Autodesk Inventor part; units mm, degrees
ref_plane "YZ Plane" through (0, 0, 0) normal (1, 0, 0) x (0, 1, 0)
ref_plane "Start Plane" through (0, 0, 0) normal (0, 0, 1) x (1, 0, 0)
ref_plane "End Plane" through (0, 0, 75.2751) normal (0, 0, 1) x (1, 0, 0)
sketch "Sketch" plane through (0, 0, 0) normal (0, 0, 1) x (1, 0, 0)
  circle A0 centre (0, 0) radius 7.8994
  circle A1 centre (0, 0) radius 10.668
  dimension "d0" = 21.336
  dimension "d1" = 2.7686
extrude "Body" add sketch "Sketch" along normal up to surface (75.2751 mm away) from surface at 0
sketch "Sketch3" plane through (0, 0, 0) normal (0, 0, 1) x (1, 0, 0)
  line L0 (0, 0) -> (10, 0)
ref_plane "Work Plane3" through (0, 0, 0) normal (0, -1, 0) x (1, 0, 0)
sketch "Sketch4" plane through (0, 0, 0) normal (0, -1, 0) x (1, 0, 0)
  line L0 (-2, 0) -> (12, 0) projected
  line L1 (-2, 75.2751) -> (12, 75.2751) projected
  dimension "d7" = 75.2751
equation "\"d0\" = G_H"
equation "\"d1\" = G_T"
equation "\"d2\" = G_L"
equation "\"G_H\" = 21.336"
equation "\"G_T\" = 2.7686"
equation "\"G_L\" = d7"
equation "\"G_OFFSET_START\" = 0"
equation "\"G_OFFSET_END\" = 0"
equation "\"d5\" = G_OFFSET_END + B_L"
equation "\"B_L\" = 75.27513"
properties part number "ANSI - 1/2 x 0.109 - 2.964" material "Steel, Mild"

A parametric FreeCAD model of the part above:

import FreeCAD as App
import Part
import Sketcher
from FreeCAD import Vector
Q = App.Units.Quantity

doc = App.newDocument("Part")
body = doc.addObject("PartDesign::Body", "Body")

sketch1 = doc.addObject("Sketcher::SketchObject", "Sketch")
body.addObject(sketch1)
sketch1.AttachmentSupport = (doc.XY_Plane, [""])
sketch1.MapMode = "FlatFace"
sketch1.addGeometry([
    Part.Circle(Vector(0, 0, 0), Vector(0, 0, 1), 11),
    Part.Circle(Vector(0, 0, 0), Vector(0, 0, 1), 8),
], False)
sketch1.addConstraint([
    Sketcher.Constraint("Coincident", 0, 3, -1, 1),
    Sketcher.Constraint("Coincident", 1, 3, -1, 1),
    Sketcher.Constraint("Diameter", 0, Q("0.84 in")),
    Sketcher.Constraint("Diameter", 1, Q("0.622 in")),
])
pad1 = doc.addObject("PartDesign::Pad", "Pad")
body.addObject(pad1)
pad1.Profile = sketch1
pad1.Length = 75.2751

doc.recompute()
